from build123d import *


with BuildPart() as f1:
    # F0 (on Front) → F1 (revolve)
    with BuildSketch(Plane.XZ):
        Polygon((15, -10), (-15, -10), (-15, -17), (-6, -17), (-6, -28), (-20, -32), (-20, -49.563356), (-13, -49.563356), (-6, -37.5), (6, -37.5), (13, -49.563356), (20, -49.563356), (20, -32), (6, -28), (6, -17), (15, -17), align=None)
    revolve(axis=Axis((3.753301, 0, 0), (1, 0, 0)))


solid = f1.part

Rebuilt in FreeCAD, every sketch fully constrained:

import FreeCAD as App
import Part
import Sketcher
from FreeCAD import Vector

doc = App.newDocument("Part")
params = doc.addObject("Spreadsheet::Sheet", "Params")
for row, (alias, value) in enumerate([
    ("sketch1_width", "30 mm"),
    ("sketch1_width2", "9 mm"),
    ("sketch1_width3", "7 mm"),
    ("sketch1_height", "11 mm"),
    ("revolution_angle", "360 deg"),
], start=1):
    params.set(f"A{row}", alias)
    params.set(f"B{row}", "=" + value)
    params.setAlias(f"B{row}", alias)

body = doc.addObject("PartDesign::Body", "Body")

# Sketch on XZ plane
sketch1 = body.newObject("Sketcher::SketchObject", "Sketch")
sketch1.AttachmentSupport = (doc.getObject("XZ_Plane"), [""])
sketch1.MapMode = "FlatFace"
sketch1.addGeometry(Part.LineSegment(Vector(15, -10, 0), Vector(-15, -10, 0)), False)
sketch1.addGeometry(Part.LineSegment(Vector(-15, -10, 0), Vector(-15, -17, 0)), False)
sketch1.addGeometry(Part.LineSegment(Vector(-15, -17, 0), Vector(-6, -17, 0)), False)
sketch1.addGeometry(Part.LineSegment(Vector(-6, -17, 0), Vector(-6, -28, 0)), False)
sketch1.addGeometry(Part.LineSegment(Vector(-6, -28, 0), Vector(-20, -32, 0)), False)
sketch1.addGeometry(Part.LineSegment(Vector(-20, -32, 0), Vector(-20, -50, 0)), False)
sketch1.addGeometry(Part.LineSegment(Vector(-20, -50, 0), Vector(-13, -50, 0)), False)
sketch1.addGeometry(Part.LineSegment(Vector(-13, -50, 0), Vector(-6, -38, 0)), False)
sketch1.addGeometry(Part.LineSegment(Vector(-6, -38, 0), Vector(6, -38, 0)), False)
sketch1.addGeometry(Part.LineSegment(Vector(6, -38, 0), Vector(13, -50, 0)), False)
sketch1.addGeometry(Part.LineSegment(Vector(13, -50, 0), Vector(20, -50, 0)), False)
sketch1.addGeometry(Part.LineSegment(Vector(20, -50, 0), Vector(20, -32, 0)), False)
sketch1.addGeometry(Part.LineSegment(Vector(20, -32, 0), Vector(6, -28, 0)), False)
sketch1.addGeometry(Part.LineSegment(Vector(6, -28, 0), Vector(6, -17, 0)), False)
sketch1.addGeometry(Part.LineSegment(Vector(6, -17, 0), Vector(15, -17, 0)), False)
sketch1.addGeometry(Part.LineSegment(Vector(15, -17, 0), Vector(15, -10, 0)), False)
sketch1.addConstraint(Sketcher.Constraint("Coincident", 0, 2, 1, 1))
sketch1.addConstraint(Sketcher.Constraint("Coincident", 1, 2, 2, 1))
sketch1.addConstraint(Sketcher.Constraint("Coincident", 2, 2, 3, 1))
sketch1.addConstraint(Sketcher.Constraint("Coincident", 3, 2, 4, 1))
sketch1.addConstraint(Sketcher.Constraint("Coincident", 4, 2, 5, 1))
sketch1.addConstraint(Sketcher.Constraint("Coincident", 5, 2, 6, 1))
sketch1.addConstraint(Sketcher.Constraint("Coincident", 6, 2, 7, 1))
sketch1.addConstraint(Sketcher.Constraint("Coincident", 7, 2, 8, 1))
sketch1.addConstraint(Sketcher.Constraint("Coincident", 8, 2, 9, 1))
sketch1.addConstraint(Sketcher.Constraint("Coincident", 9, 2, 10, 1))
sketch1.addConstraint(Sketcher.Constraint("Coincident", 10, 2, 11, 1))
sketch1.addConstraint(Sketcher.Constraint("Coincident", 11, 2, 12, 1))
sketch1.addConstraint(Sketcher.Constraint("Coincident", 12, 2, 13, 1))
sketch1.addConstraint(Sketcher.Constraint("Coincident", 13, 2, 14, 1))
sketch1.addConstraint(Sketcher.Constraint("Coincident", 14, 2, 15, 1))
sketch1.addConstraint(Sketcher.Constraint("Coincident", 15, 2, 0, 1))
sketch1.addConstraint(Sketcher.Constraint("Horizontal", 0))
sketch1.addConstraint(Sketcher.Constraint("Vertical", 1))
sketch1.addConstraint(Sketcher.Constraint("Horizontal", 2))
sketch1.addConstraint(Sketcher.Constraint("Vertical", 3))
sketch1.addConstraint(Sketcher.Constraint("Vertical", 5))
sketch1.addConstraint(Sketcher.Constraint("Horizontal", 6))
sketch1.addConstraint(Sketcher.Constraint("Horizontal", 8))
sketch1.addConstraint(Sketcher.Constraint("Horizontal", 10))
sketch1.addConstraint(Sketcher.Constraint("Vertical", 11))
sketch1.addConstraint(Sketcher.Constraint("Vertical", 13))
sketch1.addConstraint(Sketcher.Constraint("Horizontal", 14))
sketch1.addConstraint(Sketcher.Constraint("Vertical", 15))
sketch1.addConstraint(Sketcher.Constraint("Symmetric", 6, 2, 9, 2, -2))
sketch1.addConstraint(Sketcher.Constraint("Symmetric", 4, 2, 11, 2, -2))
sketch1.addConstraint(Sketcher.Constraint("Symmetric", 3, 2, 12, 2, -2))
sketch1.addConstraint(Sketcher.Constraint("Symmetric", 1, 2, 14, 2, -2))
sketch1.addConstraint(Sketcher.Constraint("Vertical", 3, 2, 7, 2))
sketch1.addConstraint(Sketcher.Constraint("Vertical", 8, 2, 12, 2))
sketch1.addConstraint(Sketcher.Constraint("Equal", 10, 1))
sketch1.addConstraint(Sketcher.Constraint("DistanceX", 0, 2, 0, 1, 30.0))
sketch1.addConstraint(Sketcher.Constraint("DistanceX", 2, 1, 2, 2, 9.0))
sketch1.addConstraint(Sketcher.Constraint("DistanceX", 6, 1, 6, 2, 7.0))
sketch1.addConstraint(Sketcher.Constraint("DistanceY", 3, 2, 3, 1, 11.0))
sketch1.addConstraint(Sketcher.Constraint("DistanceY", 0, 2, -1, 1, 10.0))
sketch1.addConstraint(Sketcher.Constraint("DistanceX", 4, 2, -1, 1, 20.0))
sketch1.addConstraint(Sketcher.Constraint("DistanceY", 4, 2, -1, 1, 32.0))
sketch1.addConstraint(Sketcher.Constraint("DistanceY", 7, 2, -1, 1, 37.5))
sketch1.addConstraint(Sketcher.Constraint("DistanceY", 5, 2, 5, 1, 17.563356))
sketch1.setExpression("Constraints[35]", "Params.sketch1_width")
sketch1.setExpression("Constraints[36]", "Params.sketch1_width2")
sketch1.setExpression("Constraints[37]", "Params.sketch1_width3")
sketch1.setExpression("Constraints[38]", "Params.sketch1_height")
revolution = body.newObject("PartDesign::Revolution", "Revolution")
revolution.Profile = sketch1
revolution.ReferenceAxis = (sketch1, ["H_Axis"])
revolution.setExpression("Angle", "Params.revolution_angle")

doc.recompute()
